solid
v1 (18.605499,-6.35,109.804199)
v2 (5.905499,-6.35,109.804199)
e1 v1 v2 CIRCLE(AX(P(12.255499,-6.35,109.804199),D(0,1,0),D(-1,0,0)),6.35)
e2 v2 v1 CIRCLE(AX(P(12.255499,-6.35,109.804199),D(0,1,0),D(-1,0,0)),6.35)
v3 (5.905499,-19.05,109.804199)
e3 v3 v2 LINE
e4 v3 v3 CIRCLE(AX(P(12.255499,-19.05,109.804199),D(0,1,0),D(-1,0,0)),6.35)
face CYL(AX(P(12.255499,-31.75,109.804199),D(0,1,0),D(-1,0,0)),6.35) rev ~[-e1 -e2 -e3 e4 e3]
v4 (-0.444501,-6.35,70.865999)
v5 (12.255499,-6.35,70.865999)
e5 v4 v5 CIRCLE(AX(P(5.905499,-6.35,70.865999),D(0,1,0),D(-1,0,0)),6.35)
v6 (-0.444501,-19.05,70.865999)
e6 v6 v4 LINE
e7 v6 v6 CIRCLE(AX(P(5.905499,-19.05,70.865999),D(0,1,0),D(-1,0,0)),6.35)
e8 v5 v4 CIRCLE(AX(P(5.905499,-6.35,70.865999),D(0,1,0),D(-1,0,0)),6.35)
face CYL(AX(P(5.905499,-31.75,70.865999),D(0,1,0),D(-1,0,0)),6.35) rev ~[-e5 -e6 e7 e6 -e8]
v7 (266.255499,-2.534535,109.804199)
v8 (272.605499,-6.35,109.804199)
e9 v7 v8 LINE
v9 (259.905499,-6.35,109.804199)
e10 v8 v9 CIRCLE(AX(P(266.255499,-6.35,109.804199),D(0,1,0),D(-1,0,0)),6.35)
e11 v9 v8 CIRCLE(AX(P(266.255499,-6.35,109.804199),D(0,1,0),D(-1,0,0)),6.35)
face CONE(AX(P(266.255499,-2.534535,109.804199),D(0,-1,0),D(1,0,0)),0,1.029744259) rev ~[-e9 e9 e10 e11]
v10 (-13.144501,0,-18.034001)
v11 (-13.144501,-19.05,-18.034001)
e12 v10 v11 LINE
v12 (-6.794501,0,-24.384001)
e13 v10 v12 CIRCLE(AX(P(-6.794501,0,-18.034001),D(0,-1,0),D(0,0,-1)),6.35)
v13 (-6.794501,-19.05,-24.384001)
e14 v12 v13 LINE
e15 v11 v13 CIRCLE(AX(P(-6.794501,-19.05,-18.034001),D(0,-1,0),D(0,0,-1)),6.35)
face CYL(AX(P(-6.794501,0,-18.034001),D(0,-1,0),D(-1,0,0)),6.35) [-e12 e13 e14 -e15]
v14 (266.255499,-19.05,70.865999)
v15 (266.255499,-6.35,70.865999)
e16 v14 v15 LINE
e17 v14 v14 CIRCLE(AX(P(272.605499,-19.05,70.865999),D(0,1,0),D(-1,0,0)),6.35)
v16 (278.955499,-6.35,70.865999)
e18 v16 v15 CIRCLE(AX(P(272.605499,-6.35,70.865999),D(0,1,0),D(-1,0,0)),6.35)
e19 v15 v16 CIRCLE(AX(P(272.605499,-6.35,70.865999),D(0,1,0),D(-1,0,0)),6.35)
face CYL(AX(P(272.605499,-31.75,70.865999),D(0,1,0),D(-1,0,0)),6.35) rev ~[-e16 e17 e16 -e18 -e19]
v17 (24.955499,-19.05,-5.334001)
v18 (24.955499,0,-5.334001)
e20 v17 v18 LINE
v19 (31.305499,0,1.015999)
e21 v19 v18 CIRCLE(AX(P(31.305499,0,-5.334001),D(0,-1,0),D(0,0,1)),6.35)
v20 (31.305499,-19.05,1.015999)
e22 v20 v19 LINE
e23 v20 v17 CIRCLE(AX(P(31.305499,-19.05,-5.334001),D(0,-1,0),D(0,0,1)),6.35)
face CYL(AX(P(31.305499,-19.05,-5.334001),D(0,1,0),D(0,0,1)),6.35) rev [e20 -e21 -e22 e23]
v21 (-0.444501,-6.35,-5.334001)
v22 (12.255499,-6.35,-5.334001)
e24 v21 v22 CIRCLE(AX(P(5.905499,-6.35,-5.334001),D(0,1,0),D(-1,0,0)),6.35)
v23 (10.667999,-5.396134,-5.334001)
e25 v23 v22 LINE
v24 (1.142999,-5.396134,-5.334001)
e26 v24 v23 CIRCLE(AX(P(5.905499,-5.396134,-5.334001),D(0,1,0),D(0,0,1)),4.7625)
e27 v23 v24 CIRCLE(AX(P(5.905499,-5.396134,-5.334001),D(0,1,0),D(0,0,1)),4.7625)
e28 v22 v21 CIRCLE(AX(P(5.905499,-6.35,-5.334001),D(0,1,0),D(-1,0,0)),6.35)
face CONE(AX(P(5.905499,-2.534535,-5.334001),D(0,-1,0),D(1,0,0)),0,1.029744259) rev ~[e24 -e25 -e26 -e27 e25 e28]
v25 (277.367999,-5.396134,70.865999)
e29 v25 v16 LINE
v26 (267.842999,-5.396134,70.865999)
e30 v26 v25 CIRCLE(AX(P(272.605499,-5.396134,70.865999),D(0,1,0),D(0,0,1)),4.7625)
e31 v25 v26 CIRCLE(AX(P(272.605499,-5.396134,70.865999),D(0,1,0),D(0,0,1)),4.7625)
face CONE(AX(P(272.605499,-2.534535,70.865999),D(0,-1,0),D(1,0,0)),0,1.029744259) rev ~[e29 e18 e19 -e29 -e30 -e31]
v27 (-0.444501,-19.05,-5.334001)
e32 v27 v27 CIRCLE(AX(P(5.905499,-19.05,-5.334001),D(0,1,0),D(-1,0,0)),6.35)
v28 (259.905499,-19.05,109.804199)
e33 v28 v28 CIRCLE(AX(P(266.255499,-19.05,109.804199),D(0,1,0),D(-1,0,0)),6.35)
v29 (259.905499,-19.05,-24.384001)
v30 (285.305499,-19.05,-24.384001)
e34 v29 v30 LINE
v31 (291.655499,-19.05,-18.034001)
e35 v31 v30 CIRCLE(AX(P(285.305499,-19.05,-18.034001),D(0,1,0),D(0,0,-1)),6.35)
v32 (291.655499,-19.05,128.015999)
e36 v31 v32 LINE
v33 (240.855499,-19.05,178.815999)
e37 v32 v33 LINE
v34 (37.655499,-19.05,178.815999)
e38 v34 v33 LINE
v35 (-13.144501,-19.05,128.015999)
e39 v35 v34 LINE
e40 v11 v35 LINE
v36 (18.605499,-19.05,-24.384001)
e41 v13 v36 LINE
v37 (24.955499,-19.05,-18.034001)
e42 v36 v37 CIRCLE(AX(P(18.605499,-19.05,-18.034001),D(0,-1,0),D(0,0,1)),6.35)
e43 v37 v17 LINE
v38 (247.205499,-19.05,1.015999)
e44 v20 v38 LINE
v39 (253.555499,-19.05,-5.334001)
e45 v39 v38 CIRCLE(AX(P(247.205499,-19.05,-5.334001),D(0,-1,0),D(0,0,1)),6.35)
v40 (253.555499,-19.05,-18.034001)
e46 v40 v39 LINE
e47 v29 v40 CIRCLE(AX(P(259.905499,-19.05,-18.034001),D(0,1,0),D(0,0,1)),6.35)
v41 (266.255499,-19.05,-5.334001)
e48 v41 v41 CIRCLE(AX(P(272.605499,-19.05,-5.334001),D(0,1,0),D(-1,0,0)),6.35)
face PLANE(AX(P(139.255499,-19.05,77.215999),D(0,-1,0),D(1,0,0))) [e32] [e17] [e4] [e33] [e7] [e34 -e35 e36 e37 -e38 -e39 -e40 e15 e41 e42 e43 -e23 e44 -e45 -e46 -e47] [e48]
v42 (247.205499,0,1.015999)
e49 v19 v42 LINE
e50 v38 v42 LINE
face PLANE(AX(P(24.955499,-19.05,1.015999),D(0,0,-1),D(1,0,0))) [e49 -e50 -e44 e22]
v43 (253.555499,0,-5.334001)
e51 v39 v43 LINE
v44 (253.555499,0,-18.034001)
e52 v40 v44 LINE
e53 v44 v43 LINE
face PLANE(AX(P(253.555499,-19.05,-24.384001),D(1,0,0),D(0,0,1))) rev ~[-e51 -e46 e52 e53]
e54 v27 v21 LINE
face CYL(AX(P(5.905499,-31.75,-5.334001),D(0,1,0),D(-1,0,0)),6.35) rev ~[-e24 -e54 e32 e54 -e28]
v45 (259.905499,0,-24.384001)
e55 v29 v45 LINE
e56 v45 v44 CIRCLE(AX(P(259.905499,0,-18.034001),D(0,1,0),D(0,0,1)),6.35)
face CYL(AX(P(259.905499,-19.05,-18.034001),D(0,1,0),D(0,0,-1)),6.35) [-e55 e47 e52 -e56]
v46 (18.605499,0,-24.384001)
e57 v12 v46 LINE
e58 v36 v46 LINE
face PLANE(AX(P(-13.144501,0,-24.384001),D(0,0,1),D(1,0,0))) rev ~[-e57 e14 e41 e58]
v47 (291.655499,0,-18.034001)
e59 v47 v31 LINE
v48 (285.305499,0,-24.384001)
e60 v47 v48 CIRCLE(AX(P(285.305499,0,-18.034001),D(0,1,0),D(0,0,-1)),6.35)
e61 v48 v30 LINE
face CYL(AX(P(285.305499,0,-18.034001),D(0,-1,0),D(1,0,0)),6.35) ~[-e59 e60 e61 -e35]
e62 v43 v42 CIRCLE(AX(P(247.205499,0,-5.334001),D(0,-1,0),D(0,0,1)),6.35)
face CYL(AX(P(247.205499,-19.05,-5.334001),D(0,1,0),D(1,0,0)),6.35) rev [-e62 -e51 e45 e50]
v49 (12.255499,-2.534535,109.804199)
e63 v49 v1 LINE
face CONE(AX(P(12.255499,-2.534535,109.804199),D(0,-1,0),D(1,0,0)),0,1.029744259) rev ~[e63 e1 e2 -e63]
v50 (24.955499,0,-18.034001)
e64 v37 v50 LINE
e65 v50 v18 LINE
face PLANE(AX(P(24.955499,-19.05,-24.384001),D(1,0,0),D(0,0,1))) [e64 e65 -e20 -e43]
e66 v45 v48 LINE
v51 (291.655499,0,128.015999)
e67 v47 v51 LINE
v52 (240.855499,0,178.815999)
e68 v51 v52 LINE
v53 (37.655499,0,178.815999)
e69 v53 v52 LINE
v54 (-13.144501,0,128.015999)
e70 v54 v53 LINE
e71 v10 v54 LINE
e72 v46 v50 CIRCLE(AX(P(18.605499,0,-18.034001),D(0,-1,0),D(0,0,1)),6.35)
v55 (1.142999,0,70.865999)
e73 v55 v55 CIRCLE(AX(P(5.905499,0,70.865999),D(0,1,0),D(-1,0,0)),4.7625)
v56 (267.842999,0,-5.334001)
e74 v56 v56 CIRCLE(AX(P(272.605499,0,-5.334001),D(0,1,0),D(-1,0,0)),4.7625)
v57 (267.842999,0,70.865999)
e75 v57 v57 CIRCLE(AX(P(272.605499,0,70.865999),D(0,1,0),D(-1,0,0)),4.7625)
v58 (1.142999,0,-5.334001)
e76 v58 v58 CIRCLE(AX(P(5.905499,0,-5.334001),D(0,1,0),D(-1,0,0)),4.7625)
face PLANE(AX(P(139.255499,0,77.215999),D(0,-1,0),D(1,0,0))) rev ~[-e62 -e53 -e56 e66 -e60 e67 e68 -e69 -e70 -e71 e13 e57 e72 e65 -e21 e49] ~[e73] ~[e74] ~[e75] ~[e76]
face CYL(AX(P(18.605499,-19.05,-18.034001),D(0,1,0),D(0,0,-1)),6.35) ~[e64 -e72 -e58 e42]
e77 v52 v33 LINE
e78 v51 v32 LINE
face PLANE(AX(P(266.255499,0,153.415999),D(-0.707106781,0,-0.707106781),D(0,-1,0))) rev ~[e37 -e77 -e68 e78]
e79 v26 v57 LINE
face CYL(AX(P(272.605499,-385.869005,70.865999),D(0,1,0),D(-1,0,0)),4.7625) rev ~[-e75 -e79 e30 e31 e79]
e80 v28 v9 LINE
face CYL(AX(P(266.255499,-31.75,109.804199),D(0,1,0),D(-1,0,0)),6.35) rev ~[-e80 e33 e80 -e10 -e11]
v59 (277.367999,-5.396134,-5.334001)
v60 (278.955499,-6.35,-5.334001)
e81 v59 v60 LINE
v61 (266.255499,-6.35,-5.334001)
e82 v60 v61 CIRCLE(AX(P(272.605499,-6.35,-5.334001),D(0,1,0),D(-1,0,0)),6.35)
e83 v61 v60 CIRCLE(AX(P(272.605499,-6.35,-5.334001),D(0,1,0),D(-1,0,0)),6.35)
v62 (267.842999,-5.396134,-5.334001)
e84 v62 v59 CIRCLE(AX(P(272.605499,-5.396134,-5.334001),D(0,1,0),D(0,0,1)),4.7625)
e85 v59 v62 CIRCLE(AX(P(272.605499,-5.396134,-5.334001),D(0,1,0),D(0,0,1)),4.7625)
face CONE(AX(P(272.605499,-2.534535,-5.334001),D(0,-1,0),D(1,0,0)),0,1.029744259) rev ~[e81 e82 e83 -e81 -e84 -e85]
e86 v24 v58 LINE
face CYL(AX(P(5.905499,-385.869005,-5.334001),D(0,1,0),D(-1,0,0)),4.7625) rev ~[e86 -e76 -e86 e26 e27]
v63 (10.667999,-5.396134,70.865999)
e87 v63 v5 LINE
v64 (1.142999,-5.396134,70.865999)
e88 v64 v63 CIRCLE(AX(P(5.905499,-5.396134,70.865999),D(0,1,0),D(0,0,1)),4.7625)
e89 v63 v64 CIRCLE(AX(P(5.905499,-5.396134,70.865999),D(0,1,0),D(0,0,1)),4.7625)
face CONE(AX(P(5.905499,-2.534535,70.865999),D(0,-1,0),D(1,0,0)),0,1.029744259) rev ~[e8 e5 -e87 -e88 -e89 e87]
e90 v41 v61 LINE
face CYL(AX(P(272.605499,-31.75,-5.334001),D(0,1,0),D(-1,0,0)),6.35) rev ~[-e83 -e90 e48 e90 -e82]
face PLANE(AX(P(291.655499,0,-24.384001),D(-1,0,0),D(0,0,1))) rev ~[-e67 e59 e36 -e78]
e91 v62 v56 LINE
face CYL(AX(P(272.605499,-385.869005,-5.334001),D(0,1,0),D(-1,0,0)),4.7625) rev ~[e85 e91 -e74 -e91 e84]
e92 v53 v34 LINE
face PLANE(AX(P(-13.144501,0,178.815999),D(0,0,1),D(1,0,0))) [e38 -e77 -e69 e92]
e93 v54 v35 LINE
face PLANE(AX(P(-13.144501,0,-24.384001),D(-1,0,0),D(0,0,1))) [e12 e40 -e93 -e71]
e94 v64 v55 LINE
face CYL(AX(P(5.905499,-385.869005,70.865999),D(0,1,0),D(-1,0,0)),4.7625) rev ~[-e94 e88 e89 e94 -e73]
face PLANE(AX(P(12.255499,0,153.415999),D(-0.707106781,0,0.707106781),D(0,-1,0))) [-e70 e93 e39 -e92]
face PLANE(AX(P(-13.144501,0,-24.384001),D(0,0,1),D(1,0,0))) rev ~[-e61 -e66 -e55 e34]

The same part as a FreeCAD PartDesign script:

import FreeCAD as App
import Part
import Sketcher

V = App.Vector
Q = App.Units.Quantity


def edges_at(feature, points):
    """Names of the edges that pass closest to the given points."""
    edges = feature.Shape.Edges
    near = lambda p: min(range(len(edges)), key=lambda i: edges[i].distToShape(Part.Vertex(*p))[0])
    return sorted({f"Edge{near(p) + 1}" for p in points})


def add_polygon(sketch, points):
    """Adds a closed chain of lines whose ends are joined by coincident constraints."""
    first, n = sketch.GeometryCount, len(points)
    for a, b in zip(points, points[1:] + points[:1]):
        sketch.addGeometry(Part.LineSegment(App.Vector(*a, 0), App.Vector(*b, 0)), False)
    for i in range(n):
        sketch.addConstraint(Sketcher.Constraint("Coincident", first + i, 2, first + (i + 1) % n, 1))

doc = App.newDocument("Part")
body = doc.addObject("PartDesign::Body", "Body")

# Sketch on XZ plane
sketch1 = body.newObject("Sketcher::SketchObject", "Sketch")
sketch1.AttachmentSupport = (doc.getObject("XZ_Plane"), [""])
sketch1.MapMode = "FlatFace"
add_polygon(sketch1, [(-13, 179), (-13, -24), (292, -24), (292, 179)])  # lines 0-3
sketch1.addConstraint([
    Sketcher.Constraint("Vertical", 0),
    Sketcher.Constraint("Horizontal", 1),
    Sketcher.Constraint("Vertical", 2),
    Sketcher.Constraint("Horizontal", 3),
    Sketcher.Constraint("DistanceX", 1, 1, 1, 2, Q("12 in")),
    Sketcher.Constraint("DistanceY", 0, 2, 0, 1, Q("8 in")),
    Sketcher.Constraint("DistanceY", 0, 2, -1, 1, Q("0.96 in")),
    Sketcher.Constraint("DistanceX", 0, 2, -1, 1, Q("0.5175 in")),
])
pad1 = body.newObject("PartDesign::Pad", "Pad")
pad1.Profile = sketch1
pad1.Length = Q("0.75 in")
doc.recompute()

chamfer = body.newObject("PartDesign::Chamfer", "Chamfer")
chamfer.Base = (pad1, edges_at(pad1, [(-13.145, -9.525, 178.816), (291.655, -9.525, 178.816)]))
chamfer.Size = Q("2 in")

# Sketch on XZ plane
sketch2 = body.newObject("Sketcher::SketchObject", "Sketch001")
sketch2.AttachmentSupport = (doc.getObject("XZ_Plane"), [""])
sketch2.MapMode = "FlatFace"
sketch2.AttachmentOffset = App.Placement(V(0, 0, 0.75 * 25.4), App.Rotation())
add_polygon(sketch2, [(25, 1), (25, -24), (254, -24), (254, 1)])  # lines 0-3
sketch2.addConstraint([
    Sketcher.Constraint("Vertical", 0),
    Sketcher.Constraint("Horizontal", 1),
    Sketcher.Constraint("Vertical", 2),
    Sketcher.Constraint("Horizontal", 3),
    Sketcher.Constraint("DistanceX", 1, 1, 1, 2, Q("9 in")),
    Sketcher.Constraint("DistanceY", 0, 2, 0, 1, Q("1 in")),
    Sketcher.Constraint("DistanceY", 0, 2, -1, 1, Q("0.96 in")),
    Sketcher.Constraint("DistanceX", -1, 1, 0, 2, Q("0.9825 in")),
])
pocket1 = body.newObject("PartDesign::Pocket", "Pocket")
pocket1.Profile = sketch2
pocket1.Length = Q("0.75 in")
doc.recompute()

fillet = body.newObject("PartDesign::Fillet", "Fillet")
fillet.Base = (pocket1, edges_at(pocket1, [
    (24.955, -9.525, 1.016),
    (253.555, -9.525, 1.016),
    (253.555, -9.525, -24.384),
    (291.655, -9.525, -24.384),
    (24.955, -9.525, -24.384),
    (-13.145, -9.525, -24.384),
]))
fillet.Radius = Q("0.25 in")

# Sketch on XZ plane
sketch3 = body.newObject("Sketcher::SketchObject", "Sketch002")
sketch3.AttachmentSupport = (doc.getObject("XZ_Plane"), [""])
sketch3.MapMode = "FlatFace"
sketch3.AttachmentOffset = App.Placement(V(0, 0, 0.75 * 25.4), App.Rotation())
sketch3.addGeometry([
    Part.Circle(V(12, 110, 0), V(0, 0, 1), 6),
    Part.Circle(V(266, 110, 0), V(0, 0, 1), 6),
], False)
sketch3.addConstraint([
    Sketcher.Constraint("Equal", 0, 1),
    Sketcher.Constraint("Horizontal", 0, 3, 1, 3),
    Sketcher.Constraint("Diameter", 0, Q("0.5 in")),
    Sketcher.Constraint("DistanceX", 0, 3, 1, 3, Q("10 in")),
    Sketcher.Constraint("DistanceY", -1, 1, 0, 3, Q("4.3229999 in")),
    Sketcher.Constraint("DistanceX", -1, 1, 0, 3, Q("0.4825 in")),
])
doc.recompute()
hole = body.newObject("PartDesign::Hole", "Hole")
hole.Profile = sketch3
hole.ThreadType = "None"
hole.Diameter = Q("0.5 in")
hole.DepthType = "Dimension"
hole.Depth = Q("0.5 in")
hole.DrillPoint = "Angled"
hole.DrillPointAngle = 118

# Sketch on XZ plane
sketch4 = body.newObject("Sketcher::SketchObject", "Sketch003")
sketch4.AttachmentSupport = (doc.getObject("XZ_Plane"), [""])
sketch4.MapMode = "FlatFace"
sketch4.AttachmentOffset = App.Placement(V(0, 0, 0.75 * 25.4), App.Rotation())
sketch4.addGeometry([
    Part.Circle(V(273, 71, 0), V(0, 0, 1), 6),
    Part.Circle(V(6, 71, 0), V(0, 0, 1), 6),
    Part.Circle(V(6, -5, 0), V(0, 0, 1), 6),
    Part.Circle(V(273, -5, 0), V(0, 0, 1), 6),
], False)
sketch4.addConstraint([
    Sketcher.Constraint("Equal", 0, 1),
    Sketcher.Constraint("Equal", 1, 2),
    Sketcher.Constraint("Equal", 2, 3),
    Sketcher.Constraint("Horizontal", 0, 3, 1, 3),
    Sketcher.Constraint("Horizontal", 2, 3, 3, 3),
    Sketcher.Constraint("Vertical", 1, 3, 2, 3),
    Sketcher.Constraint("Vertical", 0, 3, 3, 3),
    Sketcher.Constraint("Diameter", 0, Q("0.5 in")),
    Sketcher.Constraint("DistanceY", 2, 3, 1, 3, Q("3 in")),
    Sketcher.Constraint("DistanceX", 1, 3, 0, 3, Q("10.5 in")),
    Sketcher.Constraint("DistanceY", -1, 1, 0, 3, Q("2.79 in")),
    Sketcher.Constraint("DistanceX", -1, 1, 0, 3, Q("10.7325 in")),
])
doc.recompute()
hole2 = body.newObject("PartDesign::Hole", "Hole001")
hole2.Profile = sketch4
hole2.ThreadType = "None"
hole2.Diameter = Q("0.5 in")
hole2.DepthType = "Dimension"
hole2.Depth = Q("0.5 in")
hole2.DrillPoint = "Angled"
hole2.DrillPointAngle = 118

# Sketch on XZ plane
sketch5 = body.newObject("Sketcher::SketchObject", "Sketch004")
sketch5.AttachmentSupport = (doc.getObject("XZ_Plane"), [""])
sketch5.MapMode = "FlatFace"
sketch5.AttachmentOffset = App.Placement(V(0, 0, 0.75 * 25.4), App.Rotation())
sketch5.addGeometry([
    Part.Circle(V(5.9, 70.9, 0), V(0, 0, 1), 4.8),
    Part.Circle(V(272.6, 70.9, 0), V(0, 0, 1), 4.8),
    Part.Circle(V(5.9, -5.3, 0), V(0, 0, 1), 4.8),
    Part.Circle(V(272.6, -5.3, 0), V(0, 0, 1), 4.8),
], False)
sketch5.addConstraint([
    Sketcher.Constraint("Equal", 0, 1),
    Sketcher.Constraint("Equal", 1, 2),
    Sketcher.Constraint("Equal", 2, 3),
    Sketcher.Constraint("Horizontal", 0, 3, 1, 3),
    Sketcher.Constraint("Horizontal", 2, 3, 3, 3),
    Sketcher.Constraint("Vertical", 0, 3, 2, 3),
    Sketcher.Constraint("Vertical", 1, 3, 3, 3),
    Sketcher.Constraint("Diameter", 0, Q("0.375 in")),
    Sketcher.Constraint("DistanceY", 2, 3, 0, 3, Q("3 in")),
    Sketcher.Constraint("DistanceX", 0, 3, 1, 3, Q("10.5 in")),
    Sketcher.Constraint("DistanceY", -1, 1, 0, 3, Q("2.79 in")),
    Sketcher.Constraint("DistanceX", -1, 1, 0, 3, Q("0.2325 in")),
])
doc.recompute()
hole3 = body.newObject("PartDesign::Hole", "Hole002")
hole3.Profile = sketch5
hole3.ThreadType = "None"
hole3.Diameter = Q("0.375 in")
hole3.DepthType = "ThroughAll"

doc.recompute()
